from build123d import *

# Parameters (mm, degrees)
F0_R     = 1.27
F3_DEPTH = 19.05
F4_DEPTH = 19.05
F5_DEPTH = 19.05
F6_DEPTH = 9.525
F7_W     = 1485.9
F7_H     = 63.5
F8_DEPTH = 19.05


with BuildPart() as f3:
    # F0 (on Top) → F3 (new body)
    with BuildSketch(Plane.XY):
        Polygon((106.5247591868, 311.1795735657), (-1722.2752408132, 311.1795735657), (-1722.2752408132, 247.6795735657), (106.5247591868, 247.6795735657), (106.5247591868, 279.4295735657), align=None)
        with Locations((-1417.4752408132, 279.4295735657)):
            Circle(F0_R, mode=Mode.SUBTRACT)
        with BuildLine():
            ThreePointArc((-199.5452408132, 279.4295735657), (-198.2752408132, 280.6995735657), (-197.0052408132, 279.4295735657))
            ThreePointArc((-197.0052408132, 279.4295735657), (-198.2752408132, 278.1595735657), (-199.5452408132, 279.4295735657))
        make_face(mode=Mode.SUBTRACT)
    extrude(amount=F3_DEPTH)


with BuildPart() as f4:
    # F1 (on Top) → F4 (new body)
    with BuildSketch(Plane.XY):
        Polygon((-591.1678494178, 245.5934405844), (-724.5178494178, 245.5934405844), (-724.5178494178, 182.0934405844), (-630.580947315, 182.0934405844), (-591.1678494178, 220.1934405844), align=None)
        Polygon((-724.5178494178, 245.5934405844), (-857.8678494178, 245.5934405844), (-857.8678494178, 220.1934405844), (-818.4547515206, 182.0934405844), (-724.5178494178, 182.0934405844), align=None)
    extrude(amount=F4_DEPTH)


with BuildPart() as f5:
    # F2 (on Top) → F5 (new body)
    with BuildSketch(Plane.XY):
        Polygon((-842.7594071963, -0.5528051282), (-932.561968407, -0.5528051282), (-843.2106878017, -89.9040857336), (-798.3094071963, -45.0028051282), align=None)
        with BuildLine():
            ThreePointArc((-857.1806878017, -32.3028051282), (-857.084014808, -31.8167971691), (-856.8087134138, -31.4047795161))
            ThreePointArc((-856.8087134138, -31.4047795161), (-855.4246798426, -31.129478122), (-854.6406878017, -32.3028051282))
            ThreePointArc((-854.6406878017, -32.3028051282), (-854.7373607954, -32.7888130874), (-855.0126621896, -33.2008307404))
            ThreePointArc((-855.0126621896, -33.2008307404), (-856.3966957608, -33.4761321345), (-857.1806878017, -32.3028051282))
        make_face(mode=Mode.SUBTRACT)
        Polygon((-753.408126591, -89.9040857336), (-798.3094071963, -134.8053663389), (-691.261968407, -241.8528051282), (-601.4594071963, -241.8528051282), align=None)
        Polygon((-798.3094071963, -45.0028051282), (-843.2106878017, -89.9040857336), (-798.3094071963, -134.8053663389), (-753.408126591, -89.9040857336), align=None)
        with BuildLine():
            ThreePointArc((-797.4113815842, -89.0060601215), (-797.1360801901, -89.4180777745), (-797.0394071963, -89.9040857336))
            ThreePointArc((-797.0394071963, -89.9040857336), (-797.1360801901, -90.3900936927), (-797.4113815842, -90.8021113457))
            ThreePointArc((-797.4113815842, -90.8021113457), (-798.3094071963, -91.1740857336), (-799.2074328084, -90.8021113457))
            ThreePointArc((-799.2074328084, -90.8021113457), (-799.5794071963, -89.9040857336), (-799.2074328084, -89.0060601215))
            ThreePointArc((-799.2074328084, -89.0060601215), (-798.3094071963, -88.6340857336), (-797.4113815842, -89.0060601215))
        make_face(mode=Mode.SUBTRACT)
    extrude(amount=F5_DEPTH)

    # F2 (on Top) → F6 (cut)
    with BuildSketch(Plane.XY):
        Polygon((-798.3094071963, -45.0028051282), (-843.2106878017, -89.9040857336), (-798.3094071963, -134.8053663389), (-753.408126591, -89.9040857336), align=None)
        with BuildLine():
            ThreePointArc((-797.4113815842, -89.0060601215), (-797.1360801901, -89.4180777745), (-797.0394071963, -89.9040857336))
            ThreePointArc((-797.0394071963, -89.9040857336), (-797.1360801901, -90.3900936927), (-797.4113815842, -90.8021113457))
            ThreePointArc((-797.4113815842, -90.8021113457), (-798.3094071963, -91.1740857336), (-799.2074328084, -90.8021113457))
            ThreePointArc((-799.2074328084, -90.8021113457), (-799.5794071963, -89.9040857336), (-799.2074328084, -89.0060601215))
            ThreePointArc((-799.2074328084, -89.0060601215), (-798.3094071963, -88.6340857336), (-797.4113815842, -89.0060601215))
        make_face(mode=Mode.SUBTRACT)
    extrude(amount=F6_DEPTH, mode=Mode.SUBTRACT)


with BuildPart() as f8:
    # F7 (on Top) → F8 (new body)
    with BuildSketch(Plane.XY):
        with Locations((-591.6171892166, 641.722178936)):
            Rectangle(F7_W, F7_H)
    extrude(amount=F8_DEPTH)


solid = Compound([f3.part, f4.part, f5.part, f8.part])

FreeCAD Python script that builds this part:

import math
import FreeCAD as App
import Part
import Sketcher

V = App.Vector
Q = App.Units.Quantity

doc = App.newDocument("Part")
body = doc.addObject("PartDesign::Body", "Body")

sketch1 = body.newObject("Sketcher::SketchObject", "Sketch")
sketch1.AttachmentSupport = (doc.getObject("XY_Plane"), [""])
sketch1.MapMode = "FlatFace"
sketch1.addGeometry(Part.LineSegment(V(106.5, 311.2, 0), V(-1722.3, 311.2, 0)), False)
sketch1.addGeometry(Part.LineSegment(V(-1722.3, 311.2, 0), V(-1722.3, 247.7, 0)), False)
sketch1.addGeometry(Part.LineSegment(V(-1722.3, 247.7, 0), V(106.5, 247.7, 0)), False)
sketch1.addGeometry(Part.LineSegment(V(106.5, 247.7, 0), V(106.5, 311.2, 0)), False)
sketch1.addGeometry(Part.Circle(V(-1417.5, 279.4, 0), V(0, 0, 1), 1.3), False)
sketch1.addGeometry(Part.Circle(V(-198.3, 279.4, 0), V(0, 0, 1), 1.3), False)
sketch1.addConstraint(Sketcher.Constraint("Coincident", 0, 2, 1, 1))
sketch1.addConstraint(Sketcher.Constraint("Coincident", 1, 2, 2, 1))
sketch1.addConstraint(Sketcher.Constraint("Coincident", 2, 2, 3, 1))
sketch1.addConstraint(Sketcher.Constraint("Coincident", 3, 2, 0, 1))
sketch1.addConstraint(Sketcher.Constraint("Horizontal", 0))
sketch1.addConstraint(Sketcher.Constraint("Vertical", 1))
sketch1.addConstraint(Sketcher.Constraint("Horizontal", 2))
sketch1.addConstraint(Sketcher.Constraint("Vertical", 3))
sketch1.addConstraint(Sketcher.Constraint("Equal", 4, 5))
sketch1.addConstraint(Sketcher.Constraint("Horizontal", 4, 3, 5, 3))
sketch1.addConstraint(Sketcher.Constraint("Diameter", 4, Q("0.1 in")))
sketch1.addConstraint(Sketcher.Constraint("DistanceX", 0, 2, 0, 1, Q("72 in")))
sketch1.addConstraint(Sketcher.Constraint("DistanceY", 1, 2, 1, 1, Q("2.5 in")))
sketch1.addConstraint(Sketcher.Constraint("DistanceX", 4, 3, 5, 3, Q("48 in")))
sketch1.addConstraint(Sketcher.Constraint("DistanceX", 0, 2, 4, 3, Q("12 in")))
sketch1.addConstraint(Sketcher.Constraint("DistanceY", 4, 3, 0, 2, Q("1.25 in")))
sketch1.addConstraint(Sketcher.Constraint("DistanceX", 4, 3, -1, 1, 1417.475241))
sketch1.addConstraint(Sketcher.Constraint("DistanceY", -1, 1, 4, 3, 279.429574))
pad1 = body.newObject("PartDesign::Pad", "Pad")
pad1.Profile = sketch1
pad1.Length = Q("0.75 in")
body2 = doc.addObject("PartDesign::Body", "Body001")

sketch2 = body2.newObject("Sketcher::SketchObject", "Sketch001")
sketch2.AttachmentSupport = (doc.getObject("XY_Plane001"), [""])
sketch2.MapMode = "FlatFace"
sketch2.addGeometry(Part.LineSegment(V(-591, 246, 0), V(-858, 246, 0)), False)
sketch2.addGeometry(Part.LineSegment(V(-858, 246, 0), V(-858, 220, 0)), False)
sketch2.addGeometry(Part.LineSegment(V(-858, 220, 0), V(-818, 182, 0)), False)
sketch2.addGeometry(Part.LineSegment(V(-818, 182, 0), V(-631, 182, 0)), False)
sketch2.addGeometry(Part.LineSegment(V(-631, 182, 0), V(-591, 220, 0)), False)
sketch2.addGeometry(Part.LineSegment(V(-591, 220, 0), V(-591, 246, 0)), False)
sketch2.addConstraint(Sketcher.Constraint("Coincident", 0, 2, 1, 1))
sketch2.addConstraint(Sketcher.Constraint("Coincident", 1, 2, 2, 1))
sketch2.addConstraint(Sketcher.Constraint("Coincident", 2, 2, 3, 1))
sketch2.addConstraint(Sketcher.Constraint("Coincident", 3, 2, 4, 1))
sketch2.addConstraint(Sketcher.Constraint("Coincident", 4, 2, 5, 1))
sketch2.addConstraint(Sketcher.Constraint("Coincident", 5, 2, 0, 1))
sketch2.addConstraint(Sketcher.Constraint("Horizontal", 0))
sketch2.addConstraint(Sketcher.Constraint("Vertical", 1))
sketch2.addConstraint(Sketcher.Constraint("Horizontal", 3))
sketch2.addConstraint(Sketcher.Constraint("Vertical", 5))
sketch2.addConstraint(Sketcher.Constraint("Horizontal", 1, 2, 4, 2))
sketch2.addConstraint(Sketcher.Constraint("Equal", 2, 4))
sketch2.addConstraint(Sketcher.Constraint("DistanceY", 1, 2, 1, 1, Q("1 in")))
sketch2.addConstraint(Sketcher.Constraint("DistanceX", 0, 2, 0, 1, Q("10.5 in")))
sketch2.addConstraint(Sketcher.Constraint("DistanceY", 2, 2, 1, 2, Q("1.5 in")))
sketch2.addConstraint(Sketcher.Constraint("Distance", 2, 54.817901))
sketch2.addConstraint(Sketcher.Constraint("DistanceX", 0, 2, -1, 1, 857.867849))
sketch2.addConstraint(Sketcher.Constraint("DistanceY", -1, 1, 0, 2, 245.593441))
pad2 = body2.newObject("PartDesign::Pad", "Pad001")
pad2.Profile = sketch2
pad2.Length = Q("0.75 in")
body3 = doc.addObject("PartDesign::Body", "Body002")

sketch3 = body3.newObject("Sketcher::SketchObject", "Sketch002")
sketch3.AttachmentSupport = (doc.getObject("XY_Plane002"), [""])
sketch3.MapMode = "FlatFace"
sketch3.addGeometry(Part.LineSegment(V(-842.8, -0.6, 0), V(-932.6, -0.6, 0)), False)
sketch3.addGeometry(Part.LineSegment(V(-932.6, -0.6, 0), V(-843.2, -89.9, 0)), False)
sketch3.addGeometry(Part.LineSegment(V(-843.2, -89.9, 0), V(-798.3, -134.8, 0)), False)
sketch3.addGeometry(Part.LineSegment(V(-798.3, -134.8, 0), V(-691.3, -241.9, 0)), False)
sketch3.addGeometry(Part.LineSegment(V(-691.3, -241.9, 0), V(-601.5, -241.9, 0)), False)
sketch3.addGeometry(Part.LineSegment(V(-601.5, -241.9, 0), V(-753.4, -89.9, 0)), False)
sketch3.addGeometry(Part.LineSegment(V(-753.4, -89.9, 0), V(-798.3, -45, 0)), False)
sketch3.addGeometry(Part.LineSegment(V(-798.3, -45, 0), V(-842.8, -0.6, 0)), False)
sketch3.addGeometry(Part.ArcOfCircle(Part.Circle(V(-798.3, -89.9, 0), V(0, 0, 1), 1.3), math.radians(45), math.radians(135)), False)
sketch3.addGeometry(Part.ArcOfCircle(Part.Circle(V(-798.3, -89.9, 0), V(0, 0, 1), 1.3), math.radians(0), math.radians(45)), False)
sketch3.addGeometry(Part.ArcOfCircle(Part.Circle(V(-798.3, -89.9, 0), V(0, 0, 1), 1.3), math.radians(-45), math.radians(0)), False)
sketch3.addGeometry(Part.ArcOfCircle(Part.Circle(V(-798.3, -89.9, 0), V(0, 0, 1), 1.3), math.radians(-135), math.radians(-45)), False)
sketch3.addGeometry(Part.ArcOfCircle(Part.Circle(V(-798.3, -89.9, 0), V(0, 0, 1), 1.3), math.radians(135), math.radians(225)), False)
sketch3.addGeometry(Part.ArcOfCircle(Part.Circle(V(-855.9, -32.3, 0), V(0, 0, 1), 1.3), math.radians(180), math.radians(315)), False)
sketch3.addGeometry(Part.ArcOfCircle(Part.Circle(V(-855.9, -32.3, 0), V(0, 0, 1), 1.3), math.radians(135), math.radians(180)), False)
sketch3.addGeometry(Part.ArcOfCircle(Part.Circle(V(-855.9, -32.3, 0), V(0, 0, 1), 1.3), math.radians(0), math.radians(135)), False)
sketch3.addGeometry(Part.ArcOfCircle(Part.Circle(V(-855.9, -32.3, 0), V(0, 0, 1), 1.3), math.radians(-45), math.radians(0)), False)
sketch3.addConstraint(Sketcher.Constraint("Coincident", 0, 2, 1, 1))
sketch3.addConstraint(Sketcher.Constraint("Coincident", 1, 2, 2, 1))
sketch3.addConstraint(Sketcher.Constraint("Coincident", 2, 2, 3, 1))
sketch3.addConstraint(Sketcher.Constraint("Coincident", 3, 2, 4, 1))
sketch3.addConstraint(Sketcher.Constraint("Coincident", 4, 2, 5, 1))
sketch3.addConstraint(Sketcher.Constraint("Coincident", 5, 2, 6, 1))
sketch3.addConstraint(Sketcher.Constraint("Coincident", 6, 2, 7, 1))
sketch3.addConstraint(Sketcher.Constraint("Coincident", 7, 2, 0, 1))
sketch3.addConstraint(Sketcher.Constraint("Tangent", 8, 1, 9, 2))
sketch3.addConstraint(Sketcher.Constraint("Tangent", 9, 1, 10, 2))
sketch3.addConstraint(Sketcher.Constraint("Tangent", 10, 1, 11, 2))
sketch3.addConstraint(Sketcher.Constraint("Tangent", 11, 1, 12, 2))
sketch3.addConstraint(Sketcher.Constraint("Tangent", 12, 1, 8, 2))
sketch3.addConstraint(Sketcher.Constraint("Tangent", 13, 1, 14, 2))
sketch3.addConstraint(Sketcher.Constraint("Tangent", 14, 1, 15, 2))
sketch3.addConstraint(Sketcher.Constraint("Tangent", 15, 1, 16, 2))
sketch3.addConstraint(Sketcher.Constraint("Tangent", 16, 1, 13, 2))
sketch3.addConstraint(Sketcher.Constraint("Horizontal", 0))
sketch3.addConstraint(Sketcher.Constraint("Horizontal", 4))
sketch3.addConstraint(Sketcher.Constraint("Coincident", 10, 3, 8, 3))
sketch3.addConstraint(Sketcher.Constraint("Equal", 12, 13))
sketch3.addConstraint(Sketcher.Constraint("Equal", 13, 14))
sketch3.addConstraint(Sketcher.Constraint("Parallel", 1, 2))
sketch3.addConstraint(Sketcher.Constraint("Parallel", 2, 3))
sketch3.addConstraint(Sketcher.Constraint("Parallel", 3, 5))
sketch3.addConstraint(Sketcher.Constraint("Parallel", 5, 6))
sketch3.addConstraint(Sketcher.Constraint("Parallel", 6, 7))
sketch3.addConstraint(Sketcher.Constraint("Horizontal", 12, 3, 1, 2))
sketch3.addConstraint(Sketcher.Constraint("Horizontal", 1, 2, 5, 2))
sketch3.addConstraint(Sketcher.Constraint("Horizontal", 5, 2, 9, 1))
sketch3.addConstraint(Sketcher.Constraint("Horizontal", 10, 1, 11, 1))
sketch3.addConstraint(Sketcher.Constraint("Horizontal", 8, 1, 12, 1))
sketch3.addConstraint(Sketcher.Constraint("Horizontal", 16, 3, 13, 1))
sketch3.addConstraint(Sketcher.Constraint("Horizontal", 13, 1, 15, 1))
sketch3.addConstraint(Sketcher.Constraint("Vertical", 12, 3, 2, 2))
sketch3.addConstraint(Sketcher.Constraint("Vertical", 2, 2, 6, 2))
sketch3.addConstraint(Sketcher.Constraint("Vertical", 8, 1, 10, 1))
sketch3.addConstraint(Sketcher.Constraint("Equal", 2, 6))
sketch3.addConstraint(Sketcher.Constraint("Radius", 8, Q("0.05 in")))
sketch3.addConstraint(Sketcher.Constraint("Angle", 1, Q("-45 deg")))
sketch3.addConstraint(Sketcher.Constraint("Distance", 2, Q("2.5 in")))
sketch3.addConstraint(Sketcher.Constraint("DistanceY", 13, 3, 0, 2, Q("1.25 in")))
sketch3.addConstraint(Sketcher.Constraint("DistanceX", 2, 2, 4, 2, Q("7.75 in")))
sketch3.addConstraint(Sketcher.Constraint("DistanceX", 7, 2, 6, 2, Q("1.75 in")))
sketch3.addConstraint(Sketcher.Constraint("DistanceX", 0, 2, -1, 1, 932.561968))
sketch3.addConstraint(Sketcher.Constraint("DistanceX", 8, 1, -1, 1, 797.411382))
sketch3.addConstraint(Sketcher.Constraint("DistanceY", 8, 1, -1, 1, 89.00606))
sketch3.addConstraint(Sketcher.Constraint("DistanceY", 14, 1, -1, 1, 31.40478))
sketch3.addConstraint(Sketcher.Constraint("DistanceY", 16, 1, -1, 1, 33.200831))
sketch3.addConstraint(Sketcher.Constraint("DistanceX", 13, 3, 10, 3, 57.601281))
pad3 = body3.newObject("PartDesign::Pad", "Pad002")
pad3.Profile = sketch3
pad3.Length = Q("0.75 in")

sketch4 = body3.newObject("Sketcher::SketchObject", "Sketch003")
sketch4.AttachmentSupport = (doc.getObject("XY_Plane002"), [""])
sketch4.MapMode = "FlatFace"
sketch4.addGeometry(Part.LineSegment(V(-798.3, -45, 0), V(-843.2, -89.9, 0)), False)
sketch4.addGeometry(Part.LineSegment(V(-843.2, -89.9, 0), V(-798.3, -134.8, 0)), False)
sketch4.addGeometry(Part.LineSegment(V(-798.3, -134.8, 0), V(-753.4, -89.9, 0)), False)
sketch4.addGeometry(Part.LineSegment(V(-753.4, -89.9, 0), V(-798.3, -45, 0)), False)
sketch4.addGeometry(Part.ArcOfCircle(Part.Circle(V(-798.3, -89.9, 0), V(0, 0, 1), 1.3), math.radians(45), math.radians(135)), False)
sketch4.addGeometry(Part.ArcOfCircle(Part.Circle(V(-798.3, -89.9, 0), V(0, 0, 1), 1.3), math.radians(0), math.radians(45)), False)
sketch4.addGeometry(Part.ArcOfCircle(Part.Circle(V(-798.3, -89.9, 0), V(0, 0, 1), 1.3), math.radians(-45), math.radians(0)), False)
sketch4.addGeometry(Part.ArcOfCircle(Part.Circle(V(-798.3, -89.9, 0), V(0, 0, 1), 1.3), math.radians(-135), math.radians(-45)), False)
sketch4.addGeometry(Part.ArcOfCircle(Part.Circle(V(-798.3, -89.9, 0), V(0, 0, 1), 1.3), math.radians(135), math.radians(225)), False)
sketch4.addConstraint(Sketcher.Constraint("Coincident", 0, 2, 1, 1))
sketch4.addConstraint(Sketcher.Constraint("Coincident", 1, 2, 2, 1))
sketch4.addConstraint(Sketcher.Constraint("Coincident", 2, 2, 3, 1))
sketch4.addConstraint(Sketcher.Constraint("Coincident", 3, 2, 0, 1))
sketch4.addConstraint(Sketcher.Constraint("Tangent", 4, 1, 5, 2))
sketch4.addConstraint(Sketcher.Constraint("Tangent", 5, 1, 6, 2))
sketch4.addConstraint(Sketcher.Constraint("Tangent", 6, 1, 7, 2))
sketch4.addConstraint(Sketcher.Constraint("Tangent", 7, 1, 8, 2))
sketch4.addConstraint(Sketcher.Constraint("Tangent", 8, 1, 4, 2))
sketch4.addConstraint(Sketcher.Constraint("Coincident", 6, 3, 4, 3))
sketch4.addConstraint(Sketcher.Constraint("Perpendicular", 0, 1))
sketch4.addConstraint(Sketcher.Constraint("Perpendicular", 1, 2))
sketch4.addConstraint(Sketcher.Constraint("Perpendicular", 2, 3))
sketch4.addConstraint(Sketcher.Constraint("Horizontal", 8, 3, 0, 2))
sketch4.addConstraint(Sketcher.Constraint("Horizontal", 0, 2, 2, 2))
sketch4.addConstraint(Sketcher.Constraint("Horizontal", 2, 2, 5, 1))
sketch4.addConstraint(Sketcher.Constraint("Horizontal", 6, 1, 7, 1))
sketch4.addConstraint(Sketcher.Constraint("Horizontal", 4, 1, 8, 1))
sketch4.addConstraint(Sketcher.Constraint("Vertical", 8, 3, 1, 2))
sketch4.addConstraint(Sketcher.Constraint("Vertical", 1, 2, 3, 2))
sketch4.addConstraint(Sketcher.Constraint("Vertical", 4, 1, 6, 1))
sketch4.addConstraint(Sketcher.Constraint("Radius", 4, Q("0.05 in")))
sketch4.addConstraint(Sketcher.Constraint("Distance", 0, Q("2.5 in")))
sketch4.addConstraint(Sketcher.Constraint("DistanceX", 4, 1, -1, 1, 797.411382))
sketch4.addConstraint(Sketcher.Constraint("DistanceY", 4, 1, -1, 1, 89.00606))
sketch4.addConstraint(Sketcher.Constraint("DistanceY", 6, 1, -1, 1, 90.802111))
pocket1 = body3.newObject("PartDesign::Pocket", "Pocket")
pocket1.Profile = sketch4
pocket1.Length = Q("0.375 in")
pocket1.Reversed = True
body4 = doc.addObject("PartDesign::Body", "Body003")

sketch5 = body4.newObject("Sketcher::SketchObject", "Sketch004")
sketch5.AttachmentSupport = (doc.getObject("XY_Plane003"), [""])
sketch5.MapMode = "FlatFace"
sketch5.addGeometry(Part.LineSegment(V(-1335, 673, 0), V(-1335, 610, 0)), False)
sketch5.addGeometry(Part.LineSegment(V(-1335, 610, 0), V(151, 610, 0)), False)
sketch5.addGeometry(Part.LineSegment(V(151, 610, 0), V(151, 673, 0)), False)
sketch5.addGeometry(Part.LineSegment(V(151, 673, 0), V(-1335, 673, 0)), False)
sketch5.addConstraint(Sketcher.Constraint("Coincident", 0, 2, 1, 1))
sketch5.addConstraint(Sketcher.Constraint("Coincident", 1, 2, 2, 1))
sketch5.addConstraint(Sketcher.Constraint("Coincident", 2, 2, 3, 1))
sketch5.addConstraint(Sketcher.Constraint("Coincident", 3, 2, 0, 1))
sketch5.addConstraint(Sketcher.Constraint("Vertical", 0))
sketch5.addConstraint(Sketcher.Constraint("Horizontal", 1))
sketch5.addConstraint(Sketcher.Constraint("Vertical", 2))
sketch5.addConstraint(Sketcher.Constraint("Horizontal", 3))
sketch5.addConstraint(Sketcher.Constraint("DistanceX", 1, 1, 1, 2, Q("58.5 in")))
sketch5.addConstraint(Sketcher.Constraint("DistanceY", 0, 2, 0, 1, Q("2.5 in")))
sketch5.addConstraint(Sketcher.Constraint("DistanceX", 0, 2, -1, 1, 1334.567189))
sketch5.addConstraint(Sketcher.Constraint("DistanceY", -1, 1, 0, 2, 609.972179))
pad4 = body4.newObject("PartDesign::Pad", "Pad003")
pad4.Profile = sketch5
pad4.Length = Q("0.75 in")

doc.recompute()
